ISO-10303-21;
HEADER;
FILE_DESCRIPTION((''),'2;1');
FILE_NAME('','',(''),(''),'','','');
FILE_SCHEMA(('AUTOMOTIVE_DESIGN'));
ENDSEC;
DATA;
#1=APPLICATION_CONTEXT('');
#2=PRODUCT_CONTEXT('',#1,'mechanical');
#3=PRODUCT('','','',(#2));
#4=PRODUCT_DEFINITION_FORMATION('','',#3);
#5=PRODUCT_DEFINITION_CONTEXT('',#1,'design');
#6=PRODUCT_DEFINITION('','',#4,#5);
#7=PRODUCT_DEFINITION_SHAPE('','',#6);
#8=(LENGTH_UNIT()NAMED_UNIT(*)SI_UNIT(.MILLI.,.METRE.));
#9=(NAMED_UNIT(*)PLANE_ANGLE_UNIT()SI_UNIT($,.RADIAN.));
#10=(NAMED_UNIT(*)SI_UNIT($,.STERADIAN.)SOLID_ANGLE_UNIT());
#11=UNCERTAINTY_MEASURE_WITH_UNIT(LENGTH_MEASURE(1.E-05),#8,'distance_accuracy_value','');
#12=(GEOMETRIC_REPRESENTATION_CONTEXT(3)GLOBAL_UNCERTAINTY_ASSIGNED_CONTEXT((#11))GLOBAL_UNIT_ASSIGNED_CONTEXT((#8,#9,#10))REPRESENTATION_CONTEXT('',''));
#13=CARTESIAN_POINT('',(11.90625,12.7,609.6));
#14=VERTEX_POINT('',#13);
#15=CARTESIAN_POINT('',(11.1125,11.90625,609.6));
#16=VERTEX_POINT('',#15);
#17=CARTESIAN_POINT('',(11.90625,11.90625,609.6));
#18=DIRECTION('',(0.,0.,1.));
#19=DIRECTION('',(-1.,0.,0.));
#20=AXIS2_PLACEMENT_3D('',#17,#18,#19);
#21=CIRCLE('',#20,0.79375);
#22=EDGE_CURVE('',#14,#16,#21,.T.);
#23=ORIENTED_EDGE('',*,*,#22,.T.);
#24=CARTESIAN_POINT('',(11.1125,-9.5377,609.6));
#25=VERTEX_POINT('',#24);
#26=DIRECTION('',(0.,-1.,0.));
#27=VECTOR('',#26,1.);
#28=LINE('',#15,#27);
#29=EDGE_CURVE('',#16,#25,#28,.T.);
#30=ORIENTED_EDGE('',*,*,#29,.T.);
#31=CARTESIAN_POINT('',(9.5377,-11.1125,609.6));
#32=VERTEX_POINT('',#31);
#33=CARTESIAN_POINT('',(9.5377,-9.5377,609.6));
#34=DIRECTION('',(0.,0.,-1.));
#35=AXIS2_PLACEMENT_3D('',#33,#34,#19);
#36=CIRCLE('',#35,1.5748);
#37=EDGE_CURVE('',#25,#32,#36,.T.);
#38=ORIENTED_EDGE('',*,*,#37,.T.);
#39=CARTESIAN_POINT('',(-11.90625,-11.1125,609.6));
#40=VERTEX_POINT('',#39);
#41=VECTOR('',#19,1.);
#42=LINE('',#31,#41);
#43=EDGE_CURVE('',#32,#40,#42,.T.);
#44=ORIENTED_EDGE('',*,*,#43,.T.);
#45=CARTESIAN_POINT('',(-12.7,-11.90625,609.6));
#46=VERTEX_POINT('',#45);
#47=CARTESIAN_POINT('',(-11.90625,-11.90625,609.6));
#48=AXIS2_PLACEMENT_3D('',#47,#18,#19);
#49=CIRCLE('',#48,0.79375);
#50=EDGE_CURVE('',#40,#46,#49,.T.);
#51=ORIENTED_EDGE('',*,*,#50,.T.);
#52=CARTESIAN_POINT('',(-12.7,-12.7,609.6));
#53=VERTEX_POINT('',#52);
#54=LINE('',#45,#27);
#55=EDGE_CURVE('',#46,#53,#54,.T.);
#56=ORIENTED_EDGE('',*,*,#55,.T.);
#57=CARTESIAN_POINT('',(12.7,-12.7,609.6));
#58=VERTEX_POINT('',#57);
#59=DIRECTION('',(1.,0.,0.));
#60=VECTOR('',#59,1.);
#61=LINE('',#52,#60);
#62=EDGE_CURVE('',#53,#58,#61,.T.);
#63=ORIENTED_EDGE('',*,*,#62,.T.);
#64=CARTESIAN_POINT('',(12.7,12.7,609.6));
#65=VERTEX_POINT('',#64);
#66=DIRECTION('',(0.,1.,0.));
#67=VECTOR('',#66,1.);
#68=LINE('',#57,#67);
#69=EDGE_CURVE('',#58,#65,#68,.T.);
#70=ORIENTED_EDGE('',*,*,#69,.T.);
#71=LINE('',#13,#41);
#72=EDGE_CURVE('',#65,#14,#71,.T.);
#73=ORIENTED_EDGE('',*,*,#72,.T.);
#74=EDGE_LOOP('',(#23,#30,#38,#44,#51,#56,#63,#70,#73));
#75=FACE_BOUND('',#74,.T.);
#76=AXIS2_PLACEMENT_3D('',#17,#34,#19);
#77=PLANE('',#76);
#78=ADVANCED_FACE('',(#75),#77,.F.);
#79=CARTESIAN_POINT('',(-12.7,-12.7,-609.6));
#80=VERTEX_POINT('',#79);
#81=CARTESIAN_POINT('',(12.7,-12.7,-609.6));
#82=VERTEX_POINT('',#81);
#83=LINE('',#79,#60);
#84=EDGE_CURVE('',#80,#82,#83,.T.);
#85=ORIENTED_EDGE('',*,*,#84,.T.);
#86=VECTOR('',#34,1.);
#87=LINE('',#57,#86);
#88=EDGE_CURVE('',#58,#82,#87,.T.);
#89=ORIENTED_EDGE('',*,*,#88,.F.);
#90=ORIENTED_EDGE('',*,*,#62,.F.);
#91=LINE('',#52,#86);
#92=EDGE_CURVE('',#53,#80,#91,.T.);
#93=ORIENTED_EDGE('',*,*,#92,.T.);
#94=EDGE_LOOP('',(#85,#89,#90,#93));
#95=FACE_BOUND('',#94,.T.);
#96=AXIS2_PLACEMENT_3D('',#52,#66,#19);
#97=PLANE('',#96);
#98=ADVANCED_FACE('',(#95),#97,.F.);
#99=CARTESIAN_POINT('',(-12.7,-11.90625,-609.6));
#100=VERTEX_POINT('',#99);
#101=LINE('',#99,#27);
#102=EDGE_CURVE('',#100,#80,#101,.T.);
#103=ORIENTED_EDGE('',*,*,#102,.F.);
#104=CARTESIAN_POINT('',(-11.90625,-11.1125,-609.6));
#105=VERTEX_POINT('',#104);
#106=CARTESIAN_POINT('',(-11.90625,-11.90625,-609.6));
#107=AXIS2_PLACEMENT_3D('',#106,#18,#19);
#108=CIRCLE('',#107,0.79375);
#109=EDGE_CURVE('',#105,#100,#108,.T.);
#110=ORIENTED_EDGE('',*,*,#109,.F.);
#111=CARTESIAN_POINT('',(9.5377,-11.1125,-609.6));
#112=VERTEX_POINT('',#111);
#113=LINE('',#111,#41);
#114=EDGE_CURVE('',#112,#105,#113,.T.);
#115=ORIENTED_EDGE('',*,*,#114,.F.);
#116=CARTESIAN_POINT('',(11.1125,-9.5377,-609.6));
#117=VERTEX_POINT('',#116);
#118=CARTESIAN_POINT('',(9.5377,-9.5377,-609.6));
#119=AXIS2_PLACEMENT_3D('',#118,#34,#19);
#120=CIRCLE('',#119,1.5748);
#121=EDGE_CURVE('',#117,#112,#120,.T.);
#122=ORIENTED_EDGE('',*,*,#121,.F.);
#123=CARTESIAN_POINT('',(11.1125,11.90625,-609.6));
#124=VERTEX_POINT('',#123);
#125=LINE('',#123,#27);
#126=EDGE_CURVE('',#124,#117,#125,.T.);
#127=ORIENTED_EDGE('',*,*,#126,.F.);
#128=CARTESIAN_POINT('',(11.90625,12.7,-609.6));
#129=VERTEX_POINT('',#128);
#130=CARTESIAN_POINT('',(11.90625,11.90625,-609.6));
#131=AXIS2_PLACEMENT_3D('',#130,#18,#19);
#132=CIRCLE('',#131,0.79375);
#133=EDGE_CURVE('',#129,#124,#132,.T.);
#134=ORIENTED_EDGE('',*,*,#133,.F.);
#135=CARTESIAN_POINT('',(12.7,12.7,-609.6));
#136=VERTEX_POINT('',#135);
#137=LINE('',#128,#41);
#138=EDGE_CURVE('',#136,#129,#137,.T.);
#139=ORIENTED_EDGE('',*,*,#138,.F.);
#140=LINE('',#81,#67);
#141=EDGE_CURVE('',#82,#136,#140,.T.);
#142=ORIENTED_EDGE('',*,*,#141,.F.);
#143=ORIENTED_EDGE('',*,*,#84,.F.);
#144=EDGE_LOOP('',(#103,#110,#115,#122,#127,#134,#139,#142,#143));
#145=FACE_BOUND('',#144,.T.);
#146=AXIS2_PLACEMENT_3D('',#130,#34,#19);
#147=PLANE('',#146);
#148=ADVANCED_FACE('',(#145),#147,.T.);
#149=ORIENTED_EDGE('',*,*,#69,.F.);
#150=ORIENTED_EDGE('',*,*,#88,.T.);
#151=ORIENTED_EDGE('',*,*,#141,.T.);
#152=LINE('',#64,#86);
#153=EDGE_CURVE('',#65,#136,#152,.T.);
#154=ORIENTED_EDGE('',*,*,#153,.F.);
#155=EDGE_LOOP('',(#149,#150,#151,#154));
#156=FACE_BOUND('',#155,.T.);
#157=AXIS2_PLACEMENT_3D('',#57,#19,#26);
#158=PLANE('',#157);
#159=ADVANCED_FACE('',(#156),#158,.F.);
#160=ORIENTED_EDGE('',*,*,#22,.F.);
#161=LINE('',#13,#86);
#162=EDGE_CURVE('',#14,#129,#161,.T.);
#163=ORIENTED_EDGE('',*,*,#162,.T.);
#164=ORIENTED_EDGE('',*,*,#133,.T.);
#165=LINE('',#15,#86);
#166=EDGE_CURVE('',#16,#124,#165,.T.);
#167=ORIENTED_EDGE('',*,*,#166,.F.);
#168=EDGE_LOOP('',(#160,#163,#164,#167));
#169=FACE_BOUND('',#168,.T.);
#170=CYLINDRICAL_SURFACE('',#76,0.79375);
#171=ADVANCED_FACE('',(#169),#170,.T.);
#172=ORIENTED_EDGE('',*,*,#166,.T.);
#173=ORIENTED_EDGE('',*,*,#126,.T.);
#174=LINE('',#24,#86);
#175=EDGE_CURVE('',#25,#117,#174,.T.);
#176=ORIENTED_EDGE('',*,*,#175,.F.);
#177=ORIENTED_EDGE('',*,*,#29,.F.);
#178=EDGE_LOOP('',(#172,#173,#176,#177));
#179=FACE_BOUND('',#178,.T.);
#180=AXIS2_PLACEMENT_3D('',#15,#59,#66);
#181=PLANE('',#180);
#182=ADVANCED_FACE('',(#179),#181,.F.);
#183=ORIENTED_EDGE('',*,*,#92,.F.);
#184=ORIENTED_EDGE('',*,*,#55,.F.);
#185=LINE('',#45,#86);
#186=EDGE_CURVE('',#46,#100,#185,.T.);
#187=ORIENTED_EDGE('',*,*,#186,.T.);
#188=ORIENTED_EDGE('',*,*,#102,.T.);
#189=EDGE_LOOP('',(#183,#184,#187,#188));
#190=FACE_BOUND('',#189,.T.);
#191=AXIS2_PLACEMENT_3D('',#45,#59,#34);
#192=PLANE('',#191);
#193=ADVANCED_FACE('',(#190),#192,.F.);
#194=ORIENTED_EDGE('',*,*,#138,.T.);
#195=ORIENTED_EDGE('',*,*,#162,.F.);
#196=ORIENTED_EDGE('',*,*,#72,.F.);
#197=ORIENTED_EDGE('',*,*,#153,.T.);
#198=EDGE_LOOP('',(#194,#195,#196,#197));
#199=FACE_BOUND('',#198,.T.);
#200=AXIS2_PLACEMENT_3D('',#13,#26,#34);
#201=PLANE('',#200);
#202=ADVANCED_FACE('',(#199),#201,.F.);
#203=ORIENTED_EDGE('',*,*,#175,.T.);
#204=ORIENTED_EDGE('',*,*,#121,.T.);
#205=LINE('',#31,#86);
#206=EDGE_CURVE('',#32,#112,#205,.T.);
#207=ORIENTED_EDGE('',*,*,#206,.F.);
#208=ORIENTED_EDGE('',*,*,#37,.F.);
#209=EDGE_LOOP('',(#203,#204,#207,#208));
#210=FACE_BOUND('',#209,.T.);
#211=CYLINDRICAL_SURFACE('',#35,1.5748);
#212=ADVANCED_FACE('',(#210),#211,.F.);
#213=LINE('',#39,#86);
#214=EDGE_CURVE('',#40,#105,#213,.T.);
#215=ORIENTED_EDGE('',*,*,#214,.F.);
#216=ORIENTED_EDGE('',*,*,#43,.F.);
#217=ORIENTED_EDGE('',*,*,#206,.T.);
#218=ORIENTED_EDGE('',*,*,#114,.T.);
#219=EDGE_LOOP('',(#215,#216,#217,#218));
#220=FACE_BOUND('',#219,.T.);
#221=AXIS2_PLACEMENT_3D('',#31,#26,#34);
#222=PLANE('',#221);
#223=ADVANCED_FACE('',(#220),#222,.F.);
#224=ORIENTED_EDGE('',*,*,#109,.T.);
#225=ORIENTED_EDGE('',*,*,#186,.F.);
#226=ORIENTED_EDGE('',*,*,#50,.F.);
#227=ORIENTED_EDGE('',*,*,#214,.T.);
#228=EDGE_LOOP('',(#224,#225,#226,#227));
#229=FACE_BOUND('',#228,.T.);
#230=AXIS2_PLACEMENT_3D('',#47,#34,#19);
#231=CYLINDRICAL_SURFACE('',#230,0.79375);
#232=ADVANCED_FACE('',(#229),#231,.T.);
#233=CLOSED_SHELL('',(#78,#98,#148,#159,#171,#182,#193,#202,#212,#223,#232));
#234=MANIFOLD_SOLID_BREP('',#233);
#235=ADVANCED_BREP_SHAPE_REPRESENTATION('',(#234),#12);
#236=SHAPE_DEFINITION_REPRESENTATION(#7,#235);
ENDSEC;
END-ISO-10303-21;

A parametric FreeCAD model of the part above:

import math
import FreeCAD as App
import Part
import Sketcher
from FreeCAD import Vector
Q = App.Units.Quantity

doc = App.newDocument("Part")
body = doc.addObject("PartDesign::Body", "Body")

# Sketch on XY plane
sketch1 = body.newObject("Sketcher::SketchObject", "Sketch")
sketch1.AttachmentSupport = (doc.getObject("XY_Plane"), [""])
sketch1.MapMode = "FlatFace"
sketch1.addGeometry(Part.LineSegment(Vector(-12.7, -12.7, 0), Vector(12.7, -12.7, 0)), False)
sketch1.addGeometry(Part.LineSegment(Vector(12.7, -12.7, 0), Vector(12.7, 12.7, 0)), False)
sketch1.addGeometry(Part.LineSegment(Vector(12.7, 12.7, 0), Vector(11.9, 12.7, 0)), False)
sketch1.addGeometry(Part.ArcOfCircle(Part.Circle(Vector(11.9, 11.9, 0), Vector(0, 0, 1), 0.8), math.radians(90), math.radians(180)), False)
sketch1.addGeometry(Part.LineSegment(Vector(11.1, 11.9, 0), Vector(11.1, -9.5, 0)), False)
sketch1.addGeometry(Part.ArcOfCircle(Part.Circle(Vector(9.5, -9.5, 0), Vector(0, 0, 1), 1.6), math.radians(-90), math.radians(0)), False)
sketch1.addGeometry(Part.LineSegment(Vector(9.5, -11.1, 0), Vector(-11.9, -11.1, 0)), False)
sketch1.addGeometry(Part.ArcOfCircle(Part.Circle(Vector(-11.9, -11.9, 0), Vector(0, 0, 1), 0.8), math.radians(90), math.radians(180)), False)
sketch1.addGeometry(Part.LineSegment(Vector(-12.7, -11.9, 0), Vector(-12.7, -12.7, 0)), False)
sketch1.addConstraint(Sketcher.Constraint("Coincident", 0, 2, 1, 1))
sketch1.addConstraint(Sketcher.Constraint("Coincident", 1, 2, 2, 1))
sketch1.addConstraint(Sketcher.Constraint("Tangent", 2, 2, 3, 1))
sketch1.addConstraint(Sketcher.Constraint("Tangent", 3, 2, 4, 1))
sketch1.addConstraint(Sketcher.Constraint("Tangent", 4, 2, 5, 2))
sketch1.addConstraint(Sketcher.Constraint("Tangent", 5, 1, 6, 1))
sketch1.addConstraint(Sketcher.Constraint("Tangent", 6, 2, 7, 1))
sketch1.addConstraint(Sketcher.Constraint("Tangent", 7, 2, 8, 1))
sketch1.addConstraint(Sketcher.Constraint("Coincident", 8, 2, 0, 1))
sketch1.addConstraint(Sketcher.Constraint("Horizontal", 0))
sketch1.addConstraint(Sketcher.Constraint("Vertical", 1))
sketch1.addConstraint(Sketcher.Constraint("Horizontal", 2))
sketch1.addConstraint(Sketcher.Constraint("Vertical", 4))
sketch1.addConstraint(Sketcher.Constraint("Horizontal", 6))
sketch1.addConstraint(Sketcher.Constraint("Vertical", 8))
sketch1.addConstraint(Sketcher.Constraint("Equal", 3, 7))
sketch1.addConstraint(Sketcher.Constraint("Symmetric", 3, 3, 7, 3, -1, 1))
sketch1.addConstraint(Sketcher.Constraint("Symmetric", 1, 2, 8, 2, -1, 1))
sketch1.addConstraint(Sketcher.Constraint("Equal", 0, 1))
sketch1.addConstraint(Sketcher.Constraint("DistanceX", 0, 1, 0, 2, Q("1 in")))
sketch1.addConstraint(Sketcher.Constraint("Radius", 3, Q("0.03125 in")))
sketch1.addConstraint(Sketcher.Constraint("Radius", 5, Q("0.062 in")))
pad1 = body.newObject("PartDesign::Pad", "Pad")
pad1.Profile = sketch1
pad1.Length = Q("48 in")
pad1.Midplane = True

doc.recompute()
